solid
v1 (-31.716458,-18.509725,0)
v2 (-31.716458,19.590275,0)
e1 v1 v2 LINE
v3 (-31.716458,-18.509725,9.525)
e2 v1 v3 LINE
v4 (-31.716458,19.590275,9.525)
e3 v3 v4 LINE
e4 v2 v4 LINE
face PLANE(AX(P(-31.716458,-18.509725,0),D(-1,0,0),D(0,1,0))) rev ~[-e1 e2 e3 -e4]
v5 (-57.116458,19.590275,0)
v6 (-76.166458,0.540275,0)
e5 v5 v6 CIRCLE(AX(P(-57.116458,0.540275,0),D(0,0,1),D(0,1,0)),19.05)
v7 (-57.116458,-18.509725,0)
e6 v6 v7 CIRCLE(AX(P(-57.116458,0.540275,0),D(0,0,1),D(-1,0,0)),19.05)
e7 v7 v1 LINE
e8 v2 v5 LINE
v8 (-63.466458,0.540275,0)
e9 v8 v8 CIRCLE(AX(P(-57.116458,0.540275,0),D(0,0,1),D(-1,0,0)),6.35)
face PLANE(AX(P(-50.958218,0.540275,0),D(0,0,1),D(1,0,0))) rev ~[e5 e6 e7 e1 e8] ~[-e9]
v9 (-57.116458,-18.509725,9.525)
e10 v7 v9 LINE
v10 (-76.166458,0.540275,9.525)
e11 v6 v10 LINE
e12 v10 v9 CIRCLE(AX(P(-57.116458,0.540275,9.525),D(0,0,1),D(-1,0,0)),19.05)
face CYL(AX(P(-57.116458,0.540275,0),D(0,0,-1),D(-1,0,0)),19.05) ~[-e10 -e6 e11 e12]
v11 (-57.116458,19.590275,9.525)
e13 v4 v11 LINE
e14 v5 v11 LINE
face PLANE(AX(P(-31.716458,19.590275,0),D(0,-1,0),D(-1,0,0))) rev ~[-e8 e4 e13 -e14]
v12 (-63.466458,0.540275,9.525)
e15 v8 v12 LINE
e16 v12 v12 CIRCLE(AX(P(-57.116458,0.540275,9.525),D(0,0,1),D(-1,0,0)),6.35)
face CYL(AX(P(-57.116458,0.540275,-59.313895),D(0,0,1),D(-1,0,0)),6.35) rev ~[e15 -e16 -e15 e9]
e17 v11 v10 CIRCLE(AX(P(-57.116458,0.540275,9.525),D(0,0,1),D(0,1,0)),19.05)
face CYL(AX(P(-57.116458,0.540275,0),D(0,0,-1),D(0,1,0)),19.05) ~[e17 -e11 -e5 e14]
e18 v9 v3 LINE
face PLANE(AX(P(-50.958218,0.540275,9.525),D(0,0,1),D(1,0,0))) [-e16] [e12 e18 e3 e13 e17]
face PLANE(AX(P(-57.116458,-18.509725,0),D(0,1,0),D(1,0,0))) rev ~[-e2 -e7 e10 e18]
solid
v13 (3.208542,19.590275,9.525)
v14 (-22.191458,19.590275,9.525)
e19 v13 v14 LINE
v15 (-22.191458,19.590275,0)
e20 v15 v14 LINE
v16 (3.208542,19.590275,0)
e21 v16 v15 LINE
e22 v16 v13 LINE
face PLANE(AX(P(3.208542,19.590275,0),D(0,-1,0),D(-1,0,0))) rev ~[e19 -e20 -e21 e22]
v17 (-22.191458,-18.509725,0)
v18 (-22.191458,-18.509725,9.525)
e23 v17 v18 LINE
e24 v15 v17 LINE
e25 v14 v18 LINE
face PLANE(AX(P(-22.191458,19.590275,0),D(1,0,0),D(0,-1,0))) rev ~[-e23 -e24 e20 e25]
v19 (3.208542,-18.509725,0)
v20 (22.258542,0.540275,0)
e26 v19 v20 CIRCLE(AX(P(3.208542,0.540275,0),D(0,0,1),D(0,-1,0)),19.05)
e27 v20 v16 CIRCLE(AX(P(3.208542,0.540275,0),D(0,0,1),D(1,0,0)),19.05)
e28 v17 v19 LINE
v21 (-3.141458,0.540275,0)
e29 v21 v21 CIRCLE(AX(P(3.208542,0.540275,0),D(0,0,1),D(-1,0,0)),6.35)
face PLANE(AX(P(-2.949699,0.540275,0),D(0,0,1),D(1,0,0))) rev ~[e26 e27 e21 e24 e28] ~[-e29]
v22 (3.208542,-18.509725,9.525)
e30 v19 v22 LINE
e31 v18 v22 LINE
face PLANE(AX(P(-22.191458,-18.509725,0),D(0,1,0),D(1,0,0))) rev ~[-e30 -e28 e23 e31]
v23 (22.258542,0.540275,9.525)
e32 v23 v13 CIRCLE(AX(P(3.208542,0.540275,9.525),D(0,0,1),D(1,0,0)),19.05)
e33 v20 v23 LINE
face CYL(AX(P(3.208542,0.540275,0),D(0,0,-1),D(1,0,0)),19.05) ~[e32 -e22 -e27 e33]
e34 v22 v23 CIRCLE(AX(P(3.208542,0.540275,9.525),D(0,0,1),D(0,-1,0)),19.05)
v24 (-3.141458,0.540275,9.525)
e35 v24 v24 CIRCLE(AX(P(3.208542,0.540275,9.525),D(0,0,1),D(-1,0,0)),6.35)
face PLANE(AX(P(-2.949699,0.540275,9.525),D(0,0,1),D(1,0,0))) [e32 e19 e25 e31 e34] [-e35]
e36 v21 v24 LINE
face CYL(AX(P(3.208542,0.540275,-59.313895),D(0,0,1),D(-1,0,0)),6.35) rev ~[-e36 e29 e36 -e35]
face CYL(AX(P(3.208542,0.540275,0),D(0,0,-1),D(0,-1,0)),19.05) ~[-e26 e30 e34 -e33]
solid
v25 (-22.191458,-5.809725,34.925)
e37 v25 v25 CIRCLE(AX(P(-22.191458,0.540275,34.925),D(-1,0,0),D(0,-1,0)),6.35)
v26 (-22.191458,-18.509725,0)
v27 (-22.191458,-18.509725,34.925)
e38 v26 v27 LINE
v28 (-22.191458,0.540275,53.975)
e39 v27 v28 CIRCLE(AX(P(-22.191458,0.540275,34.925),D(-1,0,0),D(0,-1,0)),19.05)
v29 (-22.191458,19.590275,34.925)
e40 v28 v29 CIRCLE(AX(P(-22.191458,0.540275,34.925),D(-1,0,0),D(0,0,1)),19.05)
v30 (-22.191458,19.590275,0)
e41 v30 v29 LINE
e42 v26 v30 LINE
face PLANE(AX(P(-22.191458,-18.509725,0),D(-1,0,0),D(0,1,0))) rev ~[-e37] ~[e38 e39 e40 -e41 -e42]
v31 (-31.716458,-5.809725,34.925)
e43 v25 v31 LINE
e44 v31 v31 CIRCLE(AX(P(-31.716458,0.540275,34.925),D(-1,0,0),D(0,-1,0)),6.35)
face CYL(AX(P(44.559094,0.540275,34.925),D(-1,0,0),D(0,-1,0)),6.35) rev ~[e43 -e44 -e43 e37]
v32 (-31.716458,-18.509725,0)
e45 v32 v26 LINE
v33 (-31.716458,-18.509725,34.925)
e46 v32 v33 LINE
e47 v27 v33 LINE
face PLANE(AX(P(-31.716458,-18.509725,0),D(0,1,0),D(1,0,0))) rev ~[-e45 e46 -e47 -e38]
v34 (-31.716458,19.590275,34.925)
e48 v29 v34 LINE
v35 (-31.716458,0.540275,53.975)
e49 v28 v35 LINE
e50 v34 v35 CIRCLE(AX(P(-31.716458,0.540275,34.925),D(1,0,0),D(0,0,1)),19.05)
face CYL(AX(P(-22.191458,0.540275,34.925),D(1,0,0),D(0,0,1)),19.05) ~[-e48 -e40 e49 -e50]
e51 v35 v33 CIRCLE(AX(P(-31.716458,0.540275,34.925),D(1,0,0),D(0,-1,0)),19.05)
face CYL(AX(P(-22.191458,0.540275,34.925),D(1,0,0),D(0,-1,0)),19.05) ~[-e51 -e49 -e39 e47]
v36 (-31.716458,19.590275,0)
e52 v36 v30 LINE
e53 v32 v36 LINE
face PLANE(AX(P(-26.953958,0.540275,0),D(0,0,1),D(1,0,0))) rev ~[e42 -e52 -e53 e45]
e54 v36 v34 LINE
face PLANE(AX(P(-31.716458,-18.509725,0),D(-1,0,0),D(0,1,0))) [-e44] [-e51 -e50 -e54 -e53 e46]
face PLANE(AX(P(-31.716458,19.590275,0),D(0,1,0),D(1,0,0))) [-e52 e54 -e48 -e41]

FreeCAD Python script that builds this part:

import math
import FreeCAD as App
import Part
import Sketcher
from FreeCAD import Vector
Q = App.Units.Quantity


def add_polygon(sketch, points):
    """Adds a closed chain of lines whose ends are joined by coincident constraints."""
    first, n = sketch.GeometryCount, len(points)
    for a, b in zip(points, points[1:] + points[:1]):
        sketch.addGeometry(Part.LineSegment(App.Vector(*a, 0), App.Vector(*b, 0)), False)
    for i in range(n):
        sketch.addConstraint(Sketcher.Constraint("Coincident", first + i, 2, first + (i + 1) % n, 1))

doc = App.newDocument("Part")
body = doc.addObject("PartDesign::Body", "Body")

# Sketch on XY plane
sketch1 = doc.addObject("Sketcher::SketchObject", "Sketch")
body.addObject(sketch1)
sketch1.AttachmentSupport = (doc.XY_Plane, [""])
sketch1.MapMode = "FlatFace"
sketch1.addGeometry([
    Part.LineSegment(Vector(3.208542, 19.590275, 0), Vector(-22.191458, 19.590275, 0)),  # 0
    Part.LineSegment(Vector(-22.191458, 19.590275, 0), Vector(-22.191458, -18.509725, 0)),  # 1
    Part.LineSegment(Vector(-22.191458, -18.509725, 0), Vector(3.208542, -18.509725, 0)),  # 2
    Part.ArcOfCircle(Part.Circle(Vector(3.208542, 0.540275, 0), Vector(0, 0, 1), 19.05), math.radians(-90), math.radians(0)),  # 3
    Part.ArcOfCircle(Part.Circle(Vector(3.208542, 0.540275, 0), Vector(0, 0, 1), 19.05), math.radians(0), math.radians(90)),  # 4
], False)
sketch1.addConstraint([
    Sketcher.Constraint("Coincident", 0, 2, 1, 1),
    Sketcher.Constraint("Coincident", 1, 2, 2, 1),
    Sketcher.Constraint("Tangent", 2, 2, 3, 1),
    Sketcher.Constraint("Tangent", 3, 2, 4, 1),
    Sketcher.Constraint("Tangent", 4, 2, 0, 1),
    Sketcher.Constraint("Horizontal", 0),
    Sketcher.Constraint("Vertical", 1),
    Sketcher.Constraint("Horizontal", 2),
    Sketcher.Constraint("Equal", 3, 4),
    Sketcher.Constraint("Horizontal", 4, 3, 3, 2),
    Sketcher.Constraint("DistanceX", 0, 2, 0, 1, Q("1 in")),
    Sketcher.Constraint("Radius", 3, Q("0.75 in")),
    Sketcher.Constraint("DistanceX", -1, 1, 3, 3, 3.208542),
    Sketcher.Constraint("DistanceY", -1, 1, 3, 3, 0.540275),
])
pad1 = doc.addObject("PartDesign::Pad", "Pad")
body.addObject(pad1)
pad1.Profile = sketch1
pad1.Length = Q("0.375 in")

# Sketch on XY plane
sketch2 = doc.addObject("Sketcher::SketchObject", "Sketch001")
body.addObject(sketch2)
sketch2.AttachmentSupport = (doc.XY_Plane, [""])
sketch2.MapMode = "FlatFace"
sketch2.addGeometry(Part.Circle(Vector(3.208542, 0.540275, 0), Vector(0, 0, 1), 6.35), False)
sketch2.addConstraint([
    Sketcher.Constraint("Diameter", 0, Q("0.5 in")),
    Sketcher.Constraint("DistanceX", -1, 1, 0, 3, 3.208542),
    Sketcher.Constraint("DistanceY", -1, 1, 0, 3, 0.540275),
])
doc.recompute()
hole = doc.addObject("PartDesign::Hole", "Hole")
body.addObject(hole)
hole.Profile = sketch2
hole.ThreadType = "None"
hole.Diameter = Q("0.5 in")
hole.DepthType = "ThroughAll"
hole.Reversed = True
body2 = doc.addObject("PartDesign::Body", "Body001")

# Sketch on XY plane
sketch3 = doc.addObject("Sketcher::SketchObject", "Sketch002")
body2.addObject(sketch3)
sketch3.AttachmentSupport = (doc.getObject("XY_Plane001"), [""])
sketch3.MapMode = "FlatFace"
sketch3.addGeometry([
    Part.LineSegment(Vector(-31.716458, 19.590275, 0), Vector(-57.116458, 19.590275, 0)),  # 0
    Part.ArcOfCircle(Part.Circle(Vector(-57.116458, 0.540275, 0), Vector(0, 0, 1), 19.05), math.radians(90), math.radians(180)),  # 1
    Part.ArcOfCircle(Part.Circle(Vector(-57.116458, 0.540275, 0), Vector(0, 0, 1), 19.05), math.radians(180), math.radians(270)),  # 2
    Part.LineSegment(Vector(-57.116458, -18.509725, 0), Vector(-31.716458, -18.509725, 0)),  # 3
    Part.LineSegment(Vector(-31.716458, -18.509725, 0), Vector(-31.716458, 19.590275, 0)),  # 4
], False)
sketch3.addConstraint([
    Sketcher.Constraint("Tangent", 0, 2, 1, 1),
    Sketcher.Constraint("Tangent", 1, 2, 2, 1),
    Sketcher.Constraint("Tangent", 2, 2, 3, 1),
    Sketcher.Constraint("Coincident", 3, 2, 4, 1),
    Sketcher.Constraint("Coincident", 4, 2, 0, 1),
    Sketcher.Constraint("Horizontal", 0),
    Sketcher.Constraint("Horizontal", 3),
    Sketcher.Constraint("Vertical", 4),
    Sketcher.Constraint("Equal", 1, 2),
    Sketcher.Constraint("Horizontal", 2, 3, 1, 2),
    Sketcher.Constraint("DistanceX", 0, 2, 0, 1, Q("1 in")),
    Sketcher.Constraint("Radius", 1, Q("0.75 in")),
    Sketcher.Constraint("DistanceX", 1, 3, -1, 1, 57.116458),
    Sketcher.Constraint("DistanceY", -1, 1, 1, 3, 0.540275),
])
pad2 = doc.addObject("PartDesign::Pad", "Pad001")
body2.addObject(pad2)
pad2.Profile = sketch3
pad2.Length = Q("0.375 in")

# Sketch on XY plane
sketch4 = doc.addObject("Sketcher::SketchObject", "Sketch003")
body2.addObject(sketch4)
sketch4.AttachmentSupport = (doc.getObject("XY_Plane001"), [""])
sketch4.MapMode = "FlatFace"
sketch4.addGeometry(Part.Circle(Vector(-57.116458, 0.540275, 0), Vector(0, 0, 1), 6.35), False)
sketch4.addConstraint([
    Sketcher.Constraint("Diameter", 0, Q("0.5 in")),
    Sketcher.Constraint("DistanceX", 0, 3, -1, 1, 57.116458),
    Sketcher.Constraint("DistanceY", -1, 1, 0, 3, 0.540275),
])
doc.recompute()
hole2 = doc.addObject("PartDesign::Hole", "Hole001")
body2.addObject(hole2)
hole2.Profile = sketch4
hole2.ThreadType = "None"
hole2.Diameter = Q("0.5 in")
hole2.DepthType = "ThroughAll"
hole2.Reversed = True
body3 = doc.addObject("PartDesign::Body", "Body002")

# Sketch on XY plane
sketch5 = doc.addObject("Sketcher::SketchObject", "Sketch004")
body3.addObject(sketch5)
sketch5.AttachmentSupport = (doc.getObject("XY_Plane002"), [""])
sketch5.MapMode = "FlatFace"
add_polygon(sketch5, [(-31.716458, 19.590275), (-31.716458, -18.509725), (-22.191458, -18.509725), (-22.191458, 19.590275)])  # lines 0-3
sketch5.addConstraint([
    Sketcher.Constraint("Vertical", 0),
    Sketcher.Constraint("Horizontal", 1),
    Sketcher.Constraint("Vertical", 2),
    Sketcher.Constraint("Horizontal", 3),
    Sketcher.Constraint("DistanceY", 0, 2, 0, 1, Q("1.5 in")),
    Sketcher.Constraint("DistanceX", 1, 1, 1, 2, Q("0.375 in")),
    Sketcher.Constraint("DistanceX", 0, 2, -1, 1, 31.716458),
    Sketcher.Constraint("DistanceY", 0, 2, -1, 1, 18.509725),
])
pad3 = doc.addObject("PartDesign::Pad", "Pad002")
body3.addObject(pad3)
pad3.Profile = sketch5
pad3.Length = Q("2.125 in")

# Sketch on YZ plane
sketch6 = doc.addObject("Sketcher::SketchObject", "Sketch005")
body3.addObject(sketch6)
sketch6.AttachmentSupport = (doc.getObject("YZ_Plane002"), [""])
sketch6.MapMode = "FlatFace"
sketch6.AttachmentOffset = App.Placement(Vector(0, 0, -22.191458), App.Rotation())
sketch6.addGeometry([
    Part.ArcOfCircle(Part.Circle(Vector(0.540275, 34.925, 0), Vector(0, 0, 1), 19.05), math.radians(90), math.radians(180)),  # 0
    Part.LineSegment(Vector(0.540275, 53.975, 0), Vector(-18.509725, 53.975, 0)),  # 1
    Part.LineSegment(Vector(-18.509725, 53.975, 0), Vector(-18.509725, 34.925, 0)),  # 2
    Part.ArcOfCircle(Part.Circle(Vector(0.540275, 34.925, 0), Vector(0, 0, 1), 19.05), math.radians(0), math.radians(90)),  # 3
    Part.LineSegment(Vector(19.590275, 34.925, 0), Vector(19.590275, 53.975, 0)),  # 4
    Part.LineSegment(Vector(19.590275, 53.975, 0), Vector(0.540275, 53.975, 0)),  # 5
], False)
sketch6.addConstraint([
    Sketcher.Constraint("Tangent", 0, 1, 1, 1),
    Sketcher.Constraint("Coincident", 1, 2, 2, 1),
    Sketcher.Constraint("Tangent", 2, 2, 0, 2),
    Sketcher.Constraint("Tangent", 3, 1, 4, 1),
    Sketcher.Constraint("Coincident", 4, 2, 5, 1),
    Sketcher.Constraint("Tangent", 5, 2, 3, 2),
    Sketcher.Constraint("Horizontal", 1),
    Sketcher.Constraint("Vertical", 2),
    Sketcher.Constraint("Vertical", 4),
    Sketcher.Constraint("Horizontal", 5),
    Sketcher.Constraint("Coincident", 3, 3, 0, 3),
    Sketcher.Constraint("Equal", 0, 3),
    Sketcher.Constraint("Radius", 0, Q("0.75 in")),
    Sketcher.Constraint("DistanceY", -1, 1, 0, 3, Q("1.375 in")),
    Sketcher.Constraint("DistanceX", -1, 1, 0, 3, 0.540275),
])
pocket1 = doc.addObject("PartDesign::Pocket", "Pocket")
body3.addObject(pocket1)
pocket1.Profile = sketch6
pocket1.Length = Q("1 in")

# Sketch on YZ plane
sketch7 = doc.addObject("Sketcher::SketchObject", "Sketch006")
body3.addObject(sketch7)
sketch7.AttachmentSupport = (doc.getObject("YZ_Plane002"), [""])
sketch7.MapMode = "FlatFace"
sketch7.AttachmentOffset = App.Placement(Vector(0, 0, -22.191458), App.Rotation())
sketch7.addGeometry(Part.Circle(Vector(0.540275, 34.925, 0), Vector(0, 0, 1), 6.35), False)
sketch7.addConstraint([
    Sketcher.Constraint("Diameter", 0, Q("0.5 in")),
    Sketcher.Constraint("DistanceY", -1, 1, 0, 3, Q("1.375 in")),
    Sketcher.Constraint("DistanceX", -1, 1, 0, 3, 0.540275),
])
doc.recompute()
hole3 = doc.addObject("PartDesign::Hole", "Hole002")
body3.addObject(hole3)
hole3.Profile = sketch7
hole3.ThreadType = "None"
hole3.Diameter = Q("0.5 in")
hole3.DepthType = "ThroughAll"

doc.recompute()
